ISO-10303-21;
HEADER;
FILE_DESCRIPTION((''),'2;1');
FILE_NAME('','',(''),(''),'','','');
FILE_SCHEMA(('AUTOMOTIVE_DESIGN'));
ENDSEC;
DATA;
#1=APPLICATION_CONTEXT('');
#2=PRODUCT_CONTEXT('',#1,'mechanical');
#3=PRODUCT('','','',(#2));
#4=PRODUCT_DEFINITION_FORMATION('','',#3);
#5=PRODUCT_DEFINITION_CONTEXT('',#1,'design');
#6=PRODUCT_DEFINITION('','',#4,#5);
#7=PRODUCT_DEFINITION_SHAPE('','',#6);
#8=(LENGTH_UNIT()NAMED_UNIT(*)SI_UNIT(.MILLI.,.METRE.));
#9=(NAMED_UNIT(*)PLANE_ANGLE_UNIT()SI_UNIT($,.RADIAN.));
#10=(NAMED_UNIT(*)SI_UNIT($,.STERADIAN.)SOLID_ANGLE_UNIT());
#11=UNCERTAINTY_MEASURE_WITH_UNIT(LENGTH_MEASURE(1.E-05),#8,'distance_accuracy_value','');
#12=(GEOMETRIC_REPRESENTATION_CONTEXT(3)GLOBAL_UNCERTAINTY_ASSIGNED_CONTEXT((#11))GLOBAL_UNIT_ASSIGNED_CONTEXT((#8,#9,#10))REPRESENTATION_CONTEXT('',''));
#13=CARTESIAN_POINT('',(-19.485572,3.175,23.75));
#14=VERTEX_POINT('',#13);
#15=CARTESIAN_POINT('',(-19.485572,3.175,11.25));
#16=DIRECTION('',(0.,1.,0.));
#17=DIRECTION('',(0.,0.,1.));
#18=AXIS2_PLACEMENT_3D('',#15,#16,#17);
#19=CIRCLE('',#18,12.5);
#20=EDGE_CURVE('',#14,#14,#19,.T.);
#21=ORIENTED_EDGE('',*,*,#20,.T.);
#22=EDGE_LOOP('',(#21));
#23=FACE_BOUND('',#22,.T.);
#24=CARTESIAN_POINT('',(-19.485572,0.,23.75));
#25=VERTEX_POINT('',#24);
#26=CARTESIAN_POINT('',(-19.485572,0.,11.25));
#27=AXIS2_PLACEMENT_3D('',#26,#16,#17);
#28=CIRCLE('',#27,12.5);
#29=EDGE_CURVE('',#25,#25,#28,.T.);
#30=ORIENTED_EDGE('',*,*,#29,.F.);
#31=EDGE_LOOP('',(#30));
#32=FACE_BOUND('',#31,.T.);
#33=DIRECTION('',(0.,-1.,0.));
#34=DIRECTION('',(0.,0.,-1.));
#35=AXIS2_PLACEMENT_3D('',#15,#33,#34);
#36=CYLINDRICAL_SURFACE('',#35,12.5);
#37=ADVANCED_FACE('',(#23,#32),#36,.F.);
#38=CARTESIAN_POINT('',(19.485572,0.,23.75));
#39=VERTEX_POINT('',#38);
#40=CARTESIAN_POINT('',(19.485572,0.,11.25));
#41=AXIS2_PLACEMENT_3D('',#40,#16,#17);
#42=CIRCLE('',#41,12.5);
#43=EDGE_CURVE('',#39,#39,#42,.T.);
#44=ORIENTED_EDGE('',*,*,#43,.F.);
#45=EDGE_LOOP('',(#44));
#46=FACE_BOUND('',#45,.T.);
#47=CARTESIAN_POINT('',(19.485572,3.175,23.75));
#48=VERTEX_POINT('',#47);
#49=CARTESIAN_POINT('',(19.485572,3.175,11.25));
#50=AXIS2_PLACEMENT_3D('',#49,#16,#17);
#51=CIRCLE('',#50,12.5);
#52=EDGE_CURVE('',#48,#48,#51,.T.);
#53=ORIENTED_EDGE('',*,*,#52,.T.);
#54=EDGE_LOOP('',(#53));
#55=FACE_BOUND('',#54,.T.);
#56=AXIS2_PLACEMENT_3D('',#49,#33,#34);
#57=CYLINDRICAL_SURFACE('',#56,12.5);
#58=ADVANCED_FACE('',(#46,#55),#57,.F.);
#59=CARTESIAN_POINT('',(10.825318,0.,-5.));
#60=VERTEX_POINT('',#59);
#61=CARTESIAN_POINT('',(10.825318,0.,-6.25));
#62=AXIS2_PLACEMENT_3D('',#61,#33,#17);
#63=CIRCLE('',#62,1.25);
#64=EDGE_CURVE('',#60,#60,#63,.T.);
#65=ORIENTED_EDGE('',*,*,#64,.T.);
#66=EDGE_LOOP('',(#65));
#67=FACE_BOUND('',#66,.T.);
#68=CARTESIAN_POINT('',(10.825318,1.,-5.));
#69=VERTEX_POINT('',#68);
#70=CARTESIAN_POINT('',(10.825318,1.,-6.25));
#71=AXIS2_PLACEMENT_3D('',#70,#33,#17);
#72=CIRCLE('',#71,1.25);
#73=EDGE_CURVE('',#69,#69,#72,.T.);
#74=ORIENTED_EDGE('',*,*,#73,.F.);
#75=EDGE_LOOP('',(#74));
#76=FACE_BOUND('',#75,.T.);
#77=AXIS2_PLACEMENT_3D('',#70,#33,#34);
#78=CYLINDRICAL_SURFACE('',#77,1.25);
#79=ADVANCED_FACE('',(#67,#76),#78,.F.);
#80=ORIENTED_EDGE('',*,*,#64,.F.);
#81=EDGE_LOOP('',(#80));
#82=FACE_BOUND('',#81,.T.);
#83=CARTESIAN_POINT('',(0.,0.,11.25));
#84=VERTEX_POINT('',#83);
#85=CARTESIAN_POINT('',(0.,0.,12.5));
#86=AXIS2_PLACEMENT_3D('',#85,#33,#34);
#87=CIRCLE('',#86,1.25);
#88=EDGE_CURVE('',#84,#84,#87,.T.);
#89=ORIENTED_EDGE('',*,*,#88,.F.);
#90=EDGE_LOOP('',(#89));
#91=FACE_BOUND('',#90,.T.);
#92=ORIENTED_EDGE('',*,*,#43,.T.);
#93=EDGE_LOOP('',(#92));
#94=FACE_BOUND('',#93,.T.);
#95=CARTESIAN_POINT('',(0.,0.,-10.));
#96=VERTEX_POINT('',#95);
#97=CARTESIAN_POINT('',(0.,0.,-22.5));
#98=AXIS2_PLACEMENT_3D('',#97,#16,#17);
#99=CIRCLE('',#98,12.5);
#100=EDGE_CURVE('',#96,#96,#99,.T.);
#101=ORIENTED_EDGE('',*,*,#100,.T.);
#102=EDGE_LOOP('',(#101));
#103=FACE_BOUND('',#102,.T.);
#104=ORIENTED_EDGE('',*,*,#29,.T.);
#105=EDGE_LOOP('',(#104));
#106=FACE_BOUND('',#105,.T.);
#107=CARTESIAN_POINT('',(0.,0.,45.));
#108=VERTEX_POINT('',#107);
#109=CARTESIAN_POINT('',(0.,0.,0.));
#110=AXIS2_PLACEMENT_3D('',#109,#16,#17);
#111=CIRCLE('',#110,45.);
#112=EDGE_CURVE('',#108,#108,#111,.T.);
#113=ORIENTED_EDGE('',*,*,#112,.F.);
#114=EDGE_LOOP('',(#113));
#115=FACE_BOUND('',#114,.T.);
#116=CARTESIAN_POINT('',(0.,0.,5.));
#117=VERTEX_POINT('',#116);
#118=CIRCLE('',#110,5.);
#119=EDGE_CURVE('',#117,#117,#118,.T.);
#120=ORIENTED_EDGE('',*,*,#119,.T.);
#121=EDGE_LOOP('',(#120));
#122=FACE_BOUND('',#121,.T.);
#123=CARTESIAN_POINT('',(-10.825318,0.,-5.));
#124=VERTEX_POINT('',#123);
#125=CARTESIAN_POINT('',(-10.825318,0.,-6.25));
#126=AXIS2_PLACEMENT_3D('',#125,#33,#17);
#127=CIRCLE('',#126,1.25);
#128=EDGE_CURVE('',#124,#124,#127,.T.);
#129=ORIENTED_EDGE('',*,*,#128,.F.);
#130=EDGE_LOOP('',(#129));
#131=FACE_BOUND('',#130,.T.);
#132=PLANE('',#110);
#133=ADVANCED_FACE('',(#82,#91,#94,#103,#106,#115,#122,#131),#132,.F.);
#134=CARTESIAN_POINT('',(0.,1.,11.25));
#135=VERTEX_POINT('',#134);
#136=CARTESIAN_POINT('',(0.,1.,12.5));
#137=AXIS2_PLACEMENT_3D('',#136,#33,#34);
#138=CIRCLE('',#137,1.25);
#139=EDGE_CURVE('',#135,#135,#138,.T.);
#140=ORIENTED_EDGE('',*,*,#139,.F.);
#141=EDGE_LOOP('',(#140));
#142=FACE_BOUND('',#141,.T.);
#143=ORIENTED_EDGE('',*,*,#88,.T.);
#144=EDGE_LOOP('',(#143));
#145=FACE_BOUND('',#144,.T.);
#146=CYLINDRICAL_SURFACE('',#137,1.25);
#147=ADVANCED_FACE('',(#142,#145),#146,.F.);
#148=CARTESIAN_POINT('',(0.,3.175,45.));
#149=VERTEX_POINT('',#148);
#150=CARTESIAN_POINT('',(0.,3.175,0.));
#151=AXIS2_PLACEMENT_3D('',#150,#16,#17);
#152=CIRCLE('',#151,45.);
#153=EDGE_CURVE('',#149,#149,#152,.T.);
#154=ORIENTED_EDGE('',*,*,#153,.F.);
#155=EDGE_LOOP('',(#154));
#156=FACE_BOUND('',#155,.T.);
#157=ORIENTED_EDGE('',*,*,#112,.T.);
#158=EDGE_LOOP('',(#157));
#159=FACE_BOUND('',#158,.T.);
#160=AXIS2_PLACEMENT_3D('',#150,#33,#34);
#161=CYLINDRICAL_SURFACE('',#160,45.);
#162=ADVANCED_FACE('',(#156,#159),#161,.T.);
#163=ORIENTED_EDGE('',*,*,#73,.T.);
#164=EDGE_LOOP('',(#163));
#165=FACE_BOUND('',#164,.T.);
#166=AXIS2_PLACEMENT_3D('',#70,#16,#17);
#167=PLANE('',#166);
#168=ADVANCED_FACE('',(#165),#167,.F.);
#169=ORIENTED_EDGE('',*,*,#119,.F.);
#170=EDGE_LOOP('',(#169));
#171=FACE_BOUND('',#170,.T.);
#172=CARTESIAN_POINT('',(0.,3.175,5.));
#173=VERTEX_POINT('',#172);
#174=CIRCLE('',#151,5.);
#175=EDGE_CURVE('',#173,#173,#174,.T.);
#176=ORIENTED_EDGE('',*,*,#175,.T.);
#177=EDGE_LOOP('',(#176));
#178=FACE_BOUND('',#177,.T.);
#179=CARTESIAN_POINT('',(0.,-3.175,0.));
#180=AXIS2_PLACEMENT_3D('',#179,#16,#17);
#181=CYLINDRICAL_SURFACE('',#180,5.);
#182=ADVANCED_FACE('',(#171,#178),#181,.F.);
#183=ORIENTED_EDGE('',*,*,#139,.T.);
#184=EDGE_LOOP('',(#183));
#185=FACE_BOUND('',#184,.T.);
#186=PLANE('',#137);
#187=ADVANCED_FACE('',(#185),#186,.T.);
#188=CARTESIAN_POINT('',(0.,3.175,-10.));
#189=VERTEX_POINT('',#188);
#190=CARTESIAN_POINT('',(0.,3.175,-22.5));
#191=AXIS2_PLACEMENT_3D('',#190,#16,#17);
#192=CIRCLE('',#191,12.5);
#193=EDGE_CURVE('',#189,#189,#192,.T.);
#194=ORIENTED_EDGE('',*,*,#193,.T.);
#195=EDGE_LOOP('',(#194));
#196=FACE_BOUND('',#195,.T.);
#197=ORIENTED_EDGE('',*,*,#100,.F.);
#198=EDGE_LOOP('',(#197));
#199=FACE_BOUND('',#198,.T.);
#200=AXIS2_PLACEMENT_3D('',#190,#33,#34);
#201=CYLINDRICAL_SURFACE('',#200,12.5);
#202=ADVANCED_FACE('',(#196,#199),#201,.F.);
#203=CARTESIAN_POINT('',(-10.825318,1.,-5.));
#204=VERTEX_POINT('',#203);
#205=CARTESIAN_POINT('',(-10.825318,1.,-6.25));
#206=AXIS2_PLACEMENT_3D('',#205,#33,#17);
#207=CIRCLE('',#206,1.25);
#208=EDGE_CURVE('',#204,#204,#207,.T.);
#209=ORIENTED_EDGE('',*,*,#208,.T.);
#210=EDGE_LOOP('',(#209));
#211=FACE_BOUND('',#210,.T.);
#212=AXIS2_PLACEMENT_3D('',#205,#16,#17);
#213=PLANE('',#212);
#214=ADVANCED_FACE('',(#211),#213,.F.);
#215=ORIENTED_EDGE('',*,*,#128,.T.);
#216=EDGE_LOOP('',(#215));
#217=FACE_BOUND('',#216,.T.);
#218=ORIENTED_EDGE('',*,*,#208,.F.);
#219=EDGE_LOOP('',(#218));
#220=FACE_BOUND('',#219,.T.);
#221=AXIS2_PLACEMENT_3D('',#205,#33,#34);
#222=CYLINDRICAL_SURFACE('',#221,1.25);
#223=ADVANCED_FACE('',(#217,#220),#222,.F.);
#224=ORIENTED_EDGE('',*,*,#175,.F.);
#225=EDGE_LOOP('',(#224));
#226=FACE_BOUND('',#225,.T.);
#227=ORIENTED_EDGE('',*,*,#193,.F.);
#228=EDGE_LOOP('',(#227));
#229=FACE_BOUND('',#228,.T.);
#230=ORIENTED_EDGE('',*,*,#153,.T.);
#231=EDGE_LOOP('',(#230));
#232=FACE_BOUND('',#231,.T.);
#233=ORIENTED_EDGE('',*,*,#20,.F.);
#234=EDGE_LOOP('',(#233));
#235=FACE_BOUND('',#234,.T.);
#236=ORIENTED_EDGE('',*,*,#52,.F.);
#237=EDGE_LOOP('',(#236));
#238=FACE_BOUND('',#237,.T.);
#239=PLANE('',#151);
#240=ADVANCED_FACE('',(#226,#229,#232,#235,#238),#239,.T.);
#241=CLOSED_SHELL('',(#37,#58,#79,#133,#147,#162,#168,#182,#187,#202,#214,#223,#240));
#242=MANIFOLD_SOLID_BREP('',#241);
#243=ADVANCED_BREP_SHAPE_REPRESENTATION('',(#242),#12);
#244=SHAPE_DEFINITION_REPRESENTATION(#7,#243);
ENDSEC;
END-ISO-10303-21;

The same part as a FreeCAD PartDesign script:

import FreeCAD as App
import Part
import Sketcher
Q = App.Units.Quantity

doc = App.newDocument("Part")
body = doc.addObject("PartDesign::Body", "Body")

# Sketch on XZ plane
sketch1 = body.newObject("Sketcher::SketchObject", "Sketch")
sketch1.AttachmentSupport = (doc.getObject("XZ_Plane"), [""])
sketch1.MapMode = "FlatFace"
sketch1.addGeometry([
    Part.Circle(App.Vector(0, 0, 0), App.Vector(0, 0, 1), 45),
    Part.Circle(App.Vector(0, -22, 0), App.Vector(0, 0, 1), 12),
    Part.Circle(App.Vector(-19, 11, 0), App.Vector(0, 0, 1), 12),
    Part.Circle(App.Vector(19, 11, 0), App.Vector(0, 0, 1), 12),
], False)
sketch1.addConstraint([
    Sketcher.Constraint("Coincident", 0, 3, -1, 1),
    Sketcher.Constraint("Equal", 1, 2),
    Sketcher.Constraint("Equal", 2, 3),
    Sketcher.Constraint("Symmetric", 2, 3, 3, 3, -2),
    Sketcher.Constraint("PointOnObject", 1, 3, -2),
    Sketcher.Constraint("Diameter", 0, Q("90 mm")),
    Sketcher.Constraint("Diameter", 1, Q("25 mm")),
    Sketcher.Constraint("DistanceY", 1, 3, -1, 1, Q("22.5 mm")),
    Sketcher.Constraint("DistanceY", -1, 1, 2, 3, Q("11.25 mm")),
    Sketcher.Constraint("DistanceX", 2, 3, -1, 1, Q("19.485572 mm")),
])
pad1 = body.newObject("PartDesign::Pad", "Pad")
pad1.Profile = sketch1
pad1.Length = 3.175
pad1.Reversed = True

# Sketch on XZ plane
sketch2 = body.newObject("Sketcher::SketchObject", "Sketch001")
sketch2.AttachmentSupport = (doc.getObject("XZ_Plane"), [""])
sketch2.MapMode = "FlatFace"
sketch2.AttachmentOffset = App.Placement(App.Vector(0, 0, -3.175), App.Rotation())
sketch2.addGeometry(Part.Circle(App.Vector(0, 0, 0), App.Vector(0, 0, 1), 5), False)
sketch2.addConstraint([
    Sketcher.Constraint("Coincident", 0, 3, -1, 1),
    Sketcher.Constraint("Diameter", 0, Q("10 mm")),
])
pocket1 = body.newObject("PartDesign::Pocket", "Pocket")
pocket1.Profile = sketch2
pocket1.Length = 6.35
pocket1.Reversed = True

# Sketch on XZ plane
sketch3 = body.newObject("Sketcher::SketchObject", "Sketch002")
sketch3.AttachmentSupport = (doc.getObject("XZ_Plane"), [""])
sketch3.MapMode = "FlatFace"
sketch3.addGeometry([
    Part.Circle(App.Vector(0, 12.5, 0), App.Vector(0, 0, 1), 1.2),
    Part.Circle(App.Vector(10.8, -6.2, 0), App.Vector(0, 0, 1), 1.2),
    Part.Circle(App.Vector(-10.8, -6.2, 0), App.Vector(0, 0, 1), 1.2),
], False)
sketch3.addConstraint([
    Sketcher.Constraint("Equal", 0, 1),
    Sketcher.Constraint("Equal", 1, 2),
    Sketcher.Constraint("Symmetric", 1, 3, 2, 3, -2),
    Sketcher.Constraint("PointOnObject", 0, 3, -2),
    Sketcher.Constraint("Diameter", 0, Q("2.5 mm")),
    Sketcher.Constraint("DistanceY", -1, 1, 0, 3, Q("12.5 mm")),
    Sketcher.Constraint("DistanceY", 1, 3, -1, 1, Q("6.25 mm")),
    Sketcher.Constraint("DistanceX", -1, 1, 1, 3, Q("10.825318 mm")),
])
pocket2 = body.newObject("PartDesign::Pocket", "Pocket001")
pocket2.Profile = sketch3
pocket2.Length = 1

doc.recompute()
